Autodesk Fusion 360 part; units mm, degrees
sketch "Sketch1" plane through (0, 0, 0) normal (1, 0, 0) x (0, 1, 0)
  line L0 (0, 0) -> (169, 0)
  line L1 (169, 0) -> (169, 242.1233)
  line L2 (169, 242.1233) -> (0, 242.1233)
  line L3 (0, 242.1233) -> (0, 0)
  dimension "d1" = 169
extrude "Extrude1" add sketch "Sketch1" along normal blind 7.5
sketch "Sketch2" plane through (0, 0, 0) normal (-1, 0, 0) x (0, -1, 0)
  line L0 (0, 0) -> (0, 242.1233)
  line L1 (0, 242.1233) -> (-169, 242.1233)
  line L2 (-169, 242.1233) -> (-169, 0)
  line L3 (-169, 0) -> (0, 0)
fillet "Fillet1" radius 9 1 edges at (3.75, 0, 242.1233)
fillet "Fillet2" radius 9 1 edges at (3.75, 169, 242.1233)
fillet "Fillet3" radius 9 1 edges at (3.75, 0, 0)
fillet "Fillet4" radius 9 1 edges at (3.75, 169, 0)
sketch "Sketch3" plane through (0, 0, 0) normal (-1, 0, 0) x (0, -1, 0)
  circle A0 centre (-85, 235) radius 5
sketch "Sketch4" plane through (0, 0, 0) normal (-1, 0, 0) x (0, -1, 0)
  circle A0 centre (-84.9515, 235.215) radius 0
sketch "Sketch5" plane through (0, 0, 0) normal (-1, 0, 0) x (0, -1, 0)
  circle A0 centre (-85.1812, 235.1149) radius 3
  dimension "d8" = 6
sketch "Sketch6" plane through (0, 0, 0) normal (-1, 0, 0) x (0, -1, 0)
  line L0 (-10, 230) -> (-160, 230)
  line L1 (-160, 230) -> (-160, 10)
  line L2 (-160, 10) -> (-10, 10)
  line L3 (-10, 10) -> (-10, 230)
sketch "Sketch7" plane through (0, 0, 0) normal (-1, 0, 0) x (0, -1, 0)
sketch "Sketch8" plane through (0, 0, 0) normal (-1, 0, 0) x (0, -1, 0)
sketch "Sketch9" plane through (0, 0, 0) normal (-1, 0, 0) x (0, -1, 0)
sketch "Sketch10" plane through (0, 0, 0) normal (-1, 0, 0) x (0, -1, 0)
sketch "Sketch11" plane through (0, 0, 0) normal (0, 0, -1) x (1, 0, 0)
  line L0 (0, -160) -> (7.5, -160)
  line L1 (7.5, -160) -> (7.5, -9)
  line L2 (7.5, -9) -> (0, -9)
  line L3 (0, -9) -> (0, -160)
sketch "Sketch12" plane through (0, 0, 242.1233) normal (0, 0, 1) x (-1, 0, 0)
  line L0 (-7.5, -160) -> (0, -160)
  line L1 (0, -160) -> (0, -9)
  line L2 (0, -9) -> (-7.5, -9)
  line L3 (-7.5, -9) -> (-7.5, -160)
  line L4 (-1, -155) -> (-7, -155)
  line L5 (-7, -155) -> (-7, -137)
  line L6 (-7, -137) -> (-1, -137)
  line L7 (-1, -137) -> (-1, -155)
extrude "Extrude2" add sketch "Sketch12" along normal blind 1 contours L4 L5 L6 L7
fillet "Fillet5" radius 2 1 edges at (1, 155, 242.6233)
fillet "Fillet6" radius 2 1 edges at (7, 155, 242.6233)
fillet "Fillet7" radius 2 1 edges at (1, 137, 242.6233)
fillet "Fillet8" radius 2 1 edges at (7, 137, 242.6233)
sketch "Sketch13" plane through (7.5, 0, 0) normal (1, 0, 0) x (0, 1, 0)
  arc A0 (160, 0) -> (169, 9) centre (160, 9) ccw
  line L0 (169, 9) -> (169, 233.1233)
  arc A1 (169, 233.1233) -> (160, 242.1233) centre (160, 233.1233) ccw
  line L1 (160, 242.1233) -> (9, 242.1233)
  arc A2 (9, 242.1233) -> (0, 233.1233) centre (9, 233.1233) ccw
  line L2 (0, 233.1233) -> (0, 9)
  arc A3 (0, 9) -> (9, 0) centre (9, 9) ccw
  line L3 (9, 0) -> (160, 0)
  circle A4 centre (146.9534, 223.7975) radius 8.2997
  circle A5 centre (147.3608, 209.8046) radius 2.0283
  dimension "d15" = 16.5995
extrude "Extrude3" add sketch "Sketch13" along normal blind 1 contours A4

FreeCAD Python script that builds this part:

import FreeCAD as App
import Part
import Sketcher


def edges_at(feature, points):
    """Names of the edges that pass closest to the given points."""
    edges = feature.Shape.Edges
    near = lambda p: min(range(len(edges)), key=lambda i: edges[i].distToShape(Part.Vertex(*p))[0])
    return sorted({f"Edge{near(p) + 1}" for p in points})

doc = App.newDocument("Part")
body = doc.addObject("PartDesign::Body", "Body")

# Sketch on YZ plane
sketch1 = body.newObject("Sketcher::SketchObject", "Sketch")
sketch1.AttachmentSupport = (doc.getObject("YZ_Plane"), [""])
sketch1.MapMode = "FlatFace"
sketch1.addGeometry([
    Part.LineSegment(App.Vector(0, 242.1233, 0), App.Vector(0, 0, 0)),
    Part.LineSegment(App.Vector(0, 0, 0), App.Vector(169, 0, 0)),
    Part.LineSegment(App.Vector(169, 0, 0), App.Vector(169, 242.1233, 0)),
    Part.LineSegment(App.Vector(169, 242.1233, 0), App.Vector(0, 242.1233, 0)),
], False)
sketch1.addConstraint([
    Sketcher.Constraint("Coincident", 0, 2, 1, 1),
    Sketcher.Constraint("Coincident", 1, 2, 2, 1),
    Sketcher.Constraint("Coincident", 2, 2, 3, 1),
    Sketcher.Constraint("Coincident", 3, 2, 0, 1),
    Sketcher.Constraint("Vertical", 0),
    Sketcher.Constraint("Horizontal", 1),
    Sketcher.Constraint("Vertical", 2),
    Sketcher.Constraint("Horizontal", 3),
    Sketcher.Constraint("Coincident", 0, 2, -1, 1),
    Sketcher.Constraint("DistanceX", 1, 1, 1, 2, 169.0),
    Sketcher.Constraint("DistanceY", 0, 2, 0, 1, 242.1233),
])
pad1 = body.newObject("PartDesign::Pad", "Pad")
pad1.Profile = sketch1
pad1.Length = 7.5
doc.recompute()

fillet = body.newObject("PartDesign::Fillet", "Fillet")
fillet.Base = (pad1, edges_at(pad1, [(3.75, 0, 242.123)]))
fillet.Radius = 9
doc.recompute()

fillet2 = body.newObject("PartDesign::Fillet", "Fillet001")
fillet2.Base = (fillet, edges_at(fillet, [(3.75, 169, 242.123)]))
fillet2.Radius = 9
doc.recompute()

fillet3 = body.newObject("PartDesign::Fillet", "Fillet002")
fillet3.Base = (fillet2, edges_at(fillet2, [(3.75, 0, 0)]))
fillet3.Radius = 9
doc.recompute()

fillet4 = body.newObject("PartDesign::Fillet", "Fillet003")
fillet4.Base = (fillet3, edges_at(fillet3, [(3.75, 169, 0)]))
fillet4.Radius = 9

# Sketch on XY plane
sketch2 = body.newObject("Sketcher::SketchObject", "Sketch001")
sketch2.AttachmentSupport = (doc.getObject("XY_Plane"), [""])
sketch2.MapMode = "FlatFace"
sketch2.AttachmentOffset = App.Placement(App.Vector(0, 0, 242.1233), App.Rotation())
sketch2.addGeometry([
    Part.LineSegment(App.Vector(7, 155, 0), App.Vector(1, 155, 0)),
    Part.LineSegment(App.Vector(1, 155, 0), App.Vector(1, 137, 0)),
    Part.LineSegment(App.Vector(1, 137, 0), App.Vector(7, 137, 0)),
    Part.LineSegment(App.Vector(7, 137, 0), App.Vector(7, 155, 0)),
], False)
sketch2.addConstraint([
    Sketcher.Constraint("Coincident", 0, 2, 1, 1),
    Sketcher.Constraint("Coincident", 1, 2, 2, 1),
    Sketcher.Constraint("Coincident", 2, 2, 3, 1),
    Sketcher.Constraint("Coincident", 3, 2, 0, 1),
    Sketcher.Constraint("Horizontal", 0),
    Sketcher.Constraint("Vertical", 1),
    Sketcher.Constraint("Horizontal", 2),
    Sketcher.Constraint("Vertical", 3),
    Sketcher.Constraint("DistanceX", 0, 2, 0, 1, 6.0),
    Sketcher.Constraint("DistanceY", 1, 2, 1, 1, 18.0),
    Sketcher.Constraint("DistanceX", -1, 1, 0, 2, 1.0),
    Sketcher.Constraint("DistanceY", -1, 1, 0, 2, 155.0),
])
pad2 = body.newObject("PartDesign::Pad", "Pad001")
pad2.Profile = sketch2
pad2.Length = 1
doc.recompute()

fillet5 = body.newObject("PartDesign::Fillet", "Fillet004")
fillet5.Base = (pad2, edges_at(pad2, [(1, 155, 242.623)]))
fillet5.Radius = 2
doc.recompute()

fillet6 = body.newObject("PartDesign::Fillet", "Fillet005")
fillet6.Base = (fillet5, edges_at(fillet5, [(7, 155, 242.623)]))
fillet6.Radius = 2
doc.recompute()

fillet7 = body.newObject("PartDesign::Fillet", "Fillet006")
fillet7.Base = (fillet6, edges_at(fillet6, [(1, 137, 242.623)]))
fillet7.Radius = 2
doc.recompute()

fillet8 = body.newObject("PartDesign::Fillet", "Fillet007")
fillet8.Base = (fillet7, edges_at(fillet7, [(7, 137, 242.623)]))
fillet8.Radius = 2

# Sketch on YZ plane
sketch3 = body.newObject("Sketcher::SketchObject", "Sketch002")
sketch3.AttachmentSupport = (doc.getObject("YZ_Plane"), [""])
sketch3.MapMode = "FlatFace"
sketch3.AttachmentOffset = App.Placement(App.Vector(0, 0, 7.5), App.Rotation())
sketch3.addGeometry(Part.Circle(App.Vector(146.9534, 223.7975, 0), App.Vector(0, 0, 1), 8.2997), False)
sketch3.addConstraint([
    Sketcher.Constraint("Diameter", 0, 16.5994),
    Sketcher.Constraint("DistanceX", -1, 1, 0, 3, 146.9534),
    Sketcher.Constraint("DistanceY", -1, 1, 0, 3, 223.7975),
])
pad3 = body.newObject("PartDesign::Pad", "Pad002")
pad3.Profile = sketch3
pad3.Length = 1

doc.recompute()
